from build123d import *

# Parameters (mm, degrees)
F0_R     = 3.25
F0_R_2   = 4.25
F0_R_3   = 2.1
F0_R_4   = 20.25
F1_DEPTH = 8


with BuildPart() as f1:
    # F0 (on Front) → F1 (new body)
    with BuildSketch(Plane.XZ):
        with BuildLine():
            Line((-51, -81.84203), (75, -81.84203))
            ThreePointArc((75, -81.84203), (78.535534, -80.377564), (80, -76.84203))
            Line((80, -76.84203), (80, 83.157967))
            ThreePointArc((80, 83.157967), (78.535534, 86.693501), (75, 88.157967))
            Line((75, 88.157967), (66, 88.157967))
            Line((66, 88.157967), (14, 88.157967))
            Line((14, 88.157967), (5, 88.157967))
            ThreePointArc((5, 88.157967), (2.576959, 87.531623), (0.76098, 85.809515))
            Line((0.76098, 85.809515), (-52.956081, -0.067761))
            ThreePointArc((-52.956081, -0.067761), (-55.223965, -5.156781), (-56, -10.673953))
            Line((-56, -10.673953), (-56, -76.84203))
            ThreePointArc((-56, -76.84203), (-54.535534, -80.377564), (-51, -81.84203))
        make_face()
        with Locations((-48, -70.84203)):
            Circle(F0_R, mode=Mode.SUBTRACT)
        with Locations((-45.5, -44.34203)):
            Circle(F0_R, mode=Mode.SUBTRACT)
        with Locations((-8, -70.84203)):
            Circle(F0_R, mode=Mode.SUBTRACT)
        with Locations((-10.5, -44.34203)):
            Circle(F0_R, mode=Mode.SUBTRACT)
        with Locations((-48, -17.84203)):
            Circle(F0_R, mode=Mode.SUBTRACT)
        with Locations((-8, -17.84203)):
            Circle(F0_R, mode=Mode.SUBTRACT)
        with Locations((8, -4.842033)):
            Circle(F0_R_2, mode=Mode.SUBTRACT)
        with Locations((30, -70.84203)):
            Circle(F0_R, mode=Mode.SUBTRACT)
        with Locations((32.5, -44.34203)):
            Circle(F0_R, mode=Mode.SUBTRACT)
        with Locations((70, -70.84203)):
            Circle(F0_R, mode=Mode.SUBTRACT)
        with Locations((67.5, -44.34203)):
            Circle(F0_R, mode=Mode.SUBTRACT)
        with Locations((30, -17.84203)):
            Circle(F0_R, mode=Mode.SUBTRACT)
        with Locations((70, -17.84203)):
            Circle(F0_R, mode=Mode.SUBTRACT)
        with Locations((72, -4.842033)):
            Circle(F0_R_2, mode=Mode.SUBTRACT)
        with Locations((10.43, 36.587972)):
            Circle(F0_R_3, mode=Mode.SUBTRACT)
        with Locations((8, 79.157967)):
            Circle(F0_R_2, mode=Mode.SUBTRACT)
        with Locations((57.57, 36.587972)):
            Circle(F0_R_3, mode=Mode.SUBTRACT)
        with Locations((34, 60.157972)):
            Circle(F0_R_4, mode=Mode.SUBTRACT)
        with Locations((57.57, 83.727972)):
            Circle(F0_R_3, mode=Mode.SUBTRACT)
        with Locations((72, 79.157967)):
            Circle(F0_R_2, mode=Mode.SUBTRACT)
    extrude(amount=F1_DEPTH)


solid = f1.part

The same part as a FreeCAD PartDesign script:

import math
import FreeCAD as App
import Part
import Sketcher

V = App.Vector
Q = App.Units.Quantity

doc = App.newDocument("Part")
body = doc.addObject("PartDesign::Body", "Body")

# Sketch on XZ plane
sketch1 = doc.addObject("Sketcher::SketchObject", "Sketch")
body.addObject(sketch1)
sketch1.AttachmentSupport = (doc.XZ_Plane, [""])
sketch1.MapMode = "FlatFace"
sketch1.addGeometry([
    Part.LineSegment(V(-51, -81.8, 0), V(75, -81.8, 0)),  # 0
    Part.ArcOfCircle(Part.Circle(V(75, -76.8, 0), V(0, 0, 1), 5), math.radians(-90), math.radians(0)),  # 1
    Part.LineSegment(V(80, -76.8, 0), V(80, 83.2, 0)),  # 2
    Part.ArcOfCircle(Part.Circle(V(75, 83.2, 0), V(0, 0, 1), 5), math.radians(0), math.radians(90)),  # 3
    Part.LineSegment(V(75, 88.2, 0), V(5, 88.2, 0)),  # 4
    Part.ArcOfCircle(Part.Circle(V(5, 83.2, 0), V(0, 0, 1), 5), math.radians(90), math.radians(148)),  # 5
    Part.LineSegment(V(0.8, 85.8, 0), V(-53, -0.1, 0)),  # 6
    Part.ArcOfCircle(Part.Circle(V(-36, -10.7, 0), V(0, 0, 1), 20), math.radians(148), math.radians(180)),  # 7
    Part.LineSegment(V(-56, -10.7, 0), V(-56, -76.8, 0)),  # 8
    Part.ArcOfCircle(Part.Circle(V(-51, -76.8, 0), V(0, 0, 1), 5), math.radians(180), math.radians(270)),  # 9
    Part.Circle(V(-48, -70.8, 0), V(0, 0, 1), 3.2),  # 10
    Part.Circle(V(-45.5, -44.3, 0), V(0, 0, 1), 3.2),  # 11
    Part.Circle(V(-8, -70.8, 0), V(0, 0, 1), 3.2),  # 12
    Part.Circle(V(-10.5, -44.3, 0), V(0, 0, 1), 3.2),  # 13
    Part.Circle(V(-48, -17.8, 0), V(0, 0, 1), 3.2),  # 14
    Part.Circle(V(-8, -17.8, 0), V(0, 0, 1), 3.2),  # 15
    Part.Circle(V(8, -4.8, 0), V(0, 0, 1), 4.2),  # 16
    Part.Circle(V(30, -70.8, 0), V(0, 0, 1), 3.2),  # 17
    Part.Circle(V(32.5, -44.3, 0), V(0, 0, 1), 3.2),  # 18
    Part.Circle(V(70, -70.8, 0), V(0, 0, 1), 3.2),  # 19
    Part.Circle(V(67.5, -44.3, 0), V(0, 0, 1), 3.2),  # 20
    Part.Circle(V(30, -17.8, 0), V(0, 0, 1), 3.2),  # 21
    Part.Circle(V(70, -17.8, 0), V(0, 0, 1), 3.2),  # 22
    Part.Circle(V(72, -4.8, 0), V(0, 0, 1), 4.2),  # 23
    Part.Circle(V(10.4, 36.6, 0), V(0, 0, 1), 2.1),  # 24
    Part.Circle(V(8, 79.2, 0), V(0, 0, 1), 4.2),  # 25
    Part.Circle(V(57.6, 36.6, 0), V(0, 0, 1), 2.1),  # 26
    Part.Circle(V(34, 60.2, 0), V(0, 0, 1), 20.2),  # 27
    Part.Circle(V(57.6, 83.7, 0), V(0, 0, 1), 2.1),  # 28
    Part.Circle(V(72, 79.2, 0), V(0, 0, 1), 4.2),  # 29
], False)
sketch1.addConstraint([
    Sketcher.Constraint("Tangent", 0, 2, 1, 1),
    Sketcher.Constraint("Tangent", 1, 2, 2, 1),
    Sketcher.Constraint("Tangent", 2, 2, 3, 1),
    Sketcher.Constraint("Tangent", 3, 2, 4, 1),
    Sketcher.Constraint("Tangent", 4, 2, 5, 1),
    Sketcher.Constraint("Tangent", 5, 2, 6, 1),
    Sketcher.Constraint("Tangent", 6, 2, 7, 1),
    Sketcher.Constraint("Tangent", 7, 2, 8, 1),
    Sketcher.Constraint("Tangent", 8, 2, 9, 1),
    Sketcher.Constraint("Tangent", 9, 2, 0, 1),
    Sketcher.Constraint("Horizontal", 0),
    Sketcher.Constraint("Vertical", 2),
    Sketcher.Constraint("Horizontal", 4),
    Sketcher.Constraint("Vertical", 8),
    Sketcher.Constraint("Equal", 1, 3),
    Sketcher.Constraint("Equal", 3, 9),
    Sketcher.Constraint("Equal", 10, 11),
    Sketcher.Constraint("Equal", 11, 12),
    Sketcher.Constraint("Equal", 12, 13),
    Sketcher.Constraint("Equal", 13, 14),
    Sketcher.Constraint("Equal", 14, 15),
    Sketcher.Constraint("Equal", 15, 17),
    Sketcher.Constraint("Equal", 17, 18),
    Sketcher.Constraint("Equal", 18, 19),
    Sketcher.Constraint("Equal", 19, 20),
    Sketcher.Constraint("Equal", 20, 21),
    Sketcher.Constraint("Equal", 21, 22),
    Sketcher.Constraint("Equal", 16, 23),
    Sketcher.Constraint("Equal", 23, 25),
    Sketcher.Constraint("Equal", 24, 26),
    Sketcher.Constraint("Equal", 26, 28),
    Sketcher.Constraint("Equal", 25, 29),
    Sketcher.Constraint("Horizontal", 10, 3, 12, 3),
    Sketcher.Constraint("Horizontal", 11, 3, 13, 3),
    Sketcher.Constraint("Horizontal", 14, 3, 15, 3),
    Sketcher.Constraint("Horizontal", 12, 3, 17, 3),
    Sketcher.Constraint("Horizontal", 13, 3, 18, 3),
    Sketcher.Constraint("Horizontal", 17, 3, 19, 3),
    Sketcher.Constraint("Horizontal", 18, 3, 20, 3),
    Sketcher.Constraint("Horizontal", 15, 3, 21, 3),
    Sketcher.Constraint("Horizontal", 21, 3, 22, 3),
    Sketcher.Constraint("Horizontal", 16, 3, 23, 3),
    Sketcher.Constraint("Horizontal", 24, 3, 26, 3),
    Sketcher.Constraint("Horizontal", 25, 3, 29, 3),
    Sketcher.Constraint("Vertical", 10, 3, 14, 3),
    Sketcher.Constraint("Vertical", 12, 3, 15, 3),
    Sketcher.Constraint("Vertical", 17, 3, 21, 3),
    Sketcher.Constraint("Vertical", 19, 3, 22, 3),
    Sketcher.Constraint("Vertical", 16, 3, 25, 3),
    Sketcher.Constraint("Vertical", 26, 3, 28, 3),
    Sketcher.Constraint("Vertical", 23, 3, 29, 3),
    Sketcher.Constraint("Radius", 1, Q("5 mm")),
    Sketcher.Constraint("Diameter", 10, Q("6.5 mm")),
    Sketcher.Constraint("Diameter", 16, Q("8.5 mm")),
    Sketcher.Constraint("Diameter", 24, Q("4.2 mm")),
    Sketcher.Constraint("Diameter", 27, Q("40.5 mm")),
    Sketcher.Constraint("DistanceX", 0, 1, 0, 2, Q("126 mm")),
    Sketcher.Constraint("DistanceX", 4, 2, 4, 1, Q("70 mm")),
    Sketcher.Constraint("DistanceX", -1, 1, 1, 3, Q("75 mm")),
    Sketcher.Constraint("DistanceX", 10, 3, -1, 1, Q("48 mm")),
    Sketcher.Constraint("DistanceX", 12, 3, -1, 1, Q("8 mm")),
    Sketcher.Constraint("DistanceX", -1, 1, 16, 3, Q("8 mm")),
    Sketcher.Constraint("DistanceX", -1, 1, 17, 3, Q("30 mm")),
    Sketcher.Constraint("DistanceX", -1, 1, 19, 3, Q("70 mm")),
    Sketcher.Constraint("DistanceX", -1, 1, 23, 3, Q("72 mm")),
    Sketcher.Constraint("DistanceX", -1, 1, 27, 3, Q("34 mm")),
    Sketcher.Constraint("DistanceY", 9, 3, 10, 3, Q("6 mm")),
    Sketcher.Constraint("DistanceX", 11, 3, 13, 3, Q("35 mm")),
    Sketcher.Constraint("DistanceY", 10, 3, 14, 3, Q("53 mm")),
    Sketcher.Constraint("DistanceX", 13, 3, 18, 3, Q("43 mm")),
    Sketcher.Constraint("DistanceX", 18, 3, 20, 3, Q("35 mm")),
    Sketcher.Constraint("DistanceY", 25, 3, 3, 3, Q("4 mm")),
    Sketcher.Constraint("DistanceY", 16, 3, 25, 3, Q("84 mm")),
    Sketcher.Constraint("DistanceX", 11, 3, -1, 1, Q("45.5 mm")),
    Sketcher.Constraint("DistanceY", 10, 3, 11, 3, Q("26.5 mm")),
    Sketcher.Constraint("DistanceX", -1, 1, 24, 3, Q("10.43 mm")),
    Sketcher.Constraint("DistanceX", -1, 1, 26, 3, Q("57.57 mm")),
    Sketcher.Constraint("DistanceY", 24, 3, 27, 3, Q("23.57 mm")),
    Sketcher.Constraint("DistanceY", 27, 3, 28, 3, Q("23.57 mm")),
    Sketcher.Constraint("Radius", 5, Q("5.000003 mm")),
    Sketcher.Constraint("Radius", 7, Q("19.999987 mm")),
    Sketcher.Constraint("DistanceY", 2, 1, 2, 2, Q("159.999997 mm")),
    Sketcher.Constraint("DistanceY", 8, 2, 8, 1, Q("66.168077 mm")),
    Sketcher.Constraint("DistanceY", 1, 3, -1, 1, Q("76.84203 mm")),
    Sketcher.Constraint("DistanceY", -1, 1, 28, 3, Q("83.727972 mm")),
])
pad1 = doc.addObject("PartDesign::Pad", "Pad")
body.addObject(pad1)
pad1.Profile = sketch1
pad1.Length = 8

doc.recompute()
